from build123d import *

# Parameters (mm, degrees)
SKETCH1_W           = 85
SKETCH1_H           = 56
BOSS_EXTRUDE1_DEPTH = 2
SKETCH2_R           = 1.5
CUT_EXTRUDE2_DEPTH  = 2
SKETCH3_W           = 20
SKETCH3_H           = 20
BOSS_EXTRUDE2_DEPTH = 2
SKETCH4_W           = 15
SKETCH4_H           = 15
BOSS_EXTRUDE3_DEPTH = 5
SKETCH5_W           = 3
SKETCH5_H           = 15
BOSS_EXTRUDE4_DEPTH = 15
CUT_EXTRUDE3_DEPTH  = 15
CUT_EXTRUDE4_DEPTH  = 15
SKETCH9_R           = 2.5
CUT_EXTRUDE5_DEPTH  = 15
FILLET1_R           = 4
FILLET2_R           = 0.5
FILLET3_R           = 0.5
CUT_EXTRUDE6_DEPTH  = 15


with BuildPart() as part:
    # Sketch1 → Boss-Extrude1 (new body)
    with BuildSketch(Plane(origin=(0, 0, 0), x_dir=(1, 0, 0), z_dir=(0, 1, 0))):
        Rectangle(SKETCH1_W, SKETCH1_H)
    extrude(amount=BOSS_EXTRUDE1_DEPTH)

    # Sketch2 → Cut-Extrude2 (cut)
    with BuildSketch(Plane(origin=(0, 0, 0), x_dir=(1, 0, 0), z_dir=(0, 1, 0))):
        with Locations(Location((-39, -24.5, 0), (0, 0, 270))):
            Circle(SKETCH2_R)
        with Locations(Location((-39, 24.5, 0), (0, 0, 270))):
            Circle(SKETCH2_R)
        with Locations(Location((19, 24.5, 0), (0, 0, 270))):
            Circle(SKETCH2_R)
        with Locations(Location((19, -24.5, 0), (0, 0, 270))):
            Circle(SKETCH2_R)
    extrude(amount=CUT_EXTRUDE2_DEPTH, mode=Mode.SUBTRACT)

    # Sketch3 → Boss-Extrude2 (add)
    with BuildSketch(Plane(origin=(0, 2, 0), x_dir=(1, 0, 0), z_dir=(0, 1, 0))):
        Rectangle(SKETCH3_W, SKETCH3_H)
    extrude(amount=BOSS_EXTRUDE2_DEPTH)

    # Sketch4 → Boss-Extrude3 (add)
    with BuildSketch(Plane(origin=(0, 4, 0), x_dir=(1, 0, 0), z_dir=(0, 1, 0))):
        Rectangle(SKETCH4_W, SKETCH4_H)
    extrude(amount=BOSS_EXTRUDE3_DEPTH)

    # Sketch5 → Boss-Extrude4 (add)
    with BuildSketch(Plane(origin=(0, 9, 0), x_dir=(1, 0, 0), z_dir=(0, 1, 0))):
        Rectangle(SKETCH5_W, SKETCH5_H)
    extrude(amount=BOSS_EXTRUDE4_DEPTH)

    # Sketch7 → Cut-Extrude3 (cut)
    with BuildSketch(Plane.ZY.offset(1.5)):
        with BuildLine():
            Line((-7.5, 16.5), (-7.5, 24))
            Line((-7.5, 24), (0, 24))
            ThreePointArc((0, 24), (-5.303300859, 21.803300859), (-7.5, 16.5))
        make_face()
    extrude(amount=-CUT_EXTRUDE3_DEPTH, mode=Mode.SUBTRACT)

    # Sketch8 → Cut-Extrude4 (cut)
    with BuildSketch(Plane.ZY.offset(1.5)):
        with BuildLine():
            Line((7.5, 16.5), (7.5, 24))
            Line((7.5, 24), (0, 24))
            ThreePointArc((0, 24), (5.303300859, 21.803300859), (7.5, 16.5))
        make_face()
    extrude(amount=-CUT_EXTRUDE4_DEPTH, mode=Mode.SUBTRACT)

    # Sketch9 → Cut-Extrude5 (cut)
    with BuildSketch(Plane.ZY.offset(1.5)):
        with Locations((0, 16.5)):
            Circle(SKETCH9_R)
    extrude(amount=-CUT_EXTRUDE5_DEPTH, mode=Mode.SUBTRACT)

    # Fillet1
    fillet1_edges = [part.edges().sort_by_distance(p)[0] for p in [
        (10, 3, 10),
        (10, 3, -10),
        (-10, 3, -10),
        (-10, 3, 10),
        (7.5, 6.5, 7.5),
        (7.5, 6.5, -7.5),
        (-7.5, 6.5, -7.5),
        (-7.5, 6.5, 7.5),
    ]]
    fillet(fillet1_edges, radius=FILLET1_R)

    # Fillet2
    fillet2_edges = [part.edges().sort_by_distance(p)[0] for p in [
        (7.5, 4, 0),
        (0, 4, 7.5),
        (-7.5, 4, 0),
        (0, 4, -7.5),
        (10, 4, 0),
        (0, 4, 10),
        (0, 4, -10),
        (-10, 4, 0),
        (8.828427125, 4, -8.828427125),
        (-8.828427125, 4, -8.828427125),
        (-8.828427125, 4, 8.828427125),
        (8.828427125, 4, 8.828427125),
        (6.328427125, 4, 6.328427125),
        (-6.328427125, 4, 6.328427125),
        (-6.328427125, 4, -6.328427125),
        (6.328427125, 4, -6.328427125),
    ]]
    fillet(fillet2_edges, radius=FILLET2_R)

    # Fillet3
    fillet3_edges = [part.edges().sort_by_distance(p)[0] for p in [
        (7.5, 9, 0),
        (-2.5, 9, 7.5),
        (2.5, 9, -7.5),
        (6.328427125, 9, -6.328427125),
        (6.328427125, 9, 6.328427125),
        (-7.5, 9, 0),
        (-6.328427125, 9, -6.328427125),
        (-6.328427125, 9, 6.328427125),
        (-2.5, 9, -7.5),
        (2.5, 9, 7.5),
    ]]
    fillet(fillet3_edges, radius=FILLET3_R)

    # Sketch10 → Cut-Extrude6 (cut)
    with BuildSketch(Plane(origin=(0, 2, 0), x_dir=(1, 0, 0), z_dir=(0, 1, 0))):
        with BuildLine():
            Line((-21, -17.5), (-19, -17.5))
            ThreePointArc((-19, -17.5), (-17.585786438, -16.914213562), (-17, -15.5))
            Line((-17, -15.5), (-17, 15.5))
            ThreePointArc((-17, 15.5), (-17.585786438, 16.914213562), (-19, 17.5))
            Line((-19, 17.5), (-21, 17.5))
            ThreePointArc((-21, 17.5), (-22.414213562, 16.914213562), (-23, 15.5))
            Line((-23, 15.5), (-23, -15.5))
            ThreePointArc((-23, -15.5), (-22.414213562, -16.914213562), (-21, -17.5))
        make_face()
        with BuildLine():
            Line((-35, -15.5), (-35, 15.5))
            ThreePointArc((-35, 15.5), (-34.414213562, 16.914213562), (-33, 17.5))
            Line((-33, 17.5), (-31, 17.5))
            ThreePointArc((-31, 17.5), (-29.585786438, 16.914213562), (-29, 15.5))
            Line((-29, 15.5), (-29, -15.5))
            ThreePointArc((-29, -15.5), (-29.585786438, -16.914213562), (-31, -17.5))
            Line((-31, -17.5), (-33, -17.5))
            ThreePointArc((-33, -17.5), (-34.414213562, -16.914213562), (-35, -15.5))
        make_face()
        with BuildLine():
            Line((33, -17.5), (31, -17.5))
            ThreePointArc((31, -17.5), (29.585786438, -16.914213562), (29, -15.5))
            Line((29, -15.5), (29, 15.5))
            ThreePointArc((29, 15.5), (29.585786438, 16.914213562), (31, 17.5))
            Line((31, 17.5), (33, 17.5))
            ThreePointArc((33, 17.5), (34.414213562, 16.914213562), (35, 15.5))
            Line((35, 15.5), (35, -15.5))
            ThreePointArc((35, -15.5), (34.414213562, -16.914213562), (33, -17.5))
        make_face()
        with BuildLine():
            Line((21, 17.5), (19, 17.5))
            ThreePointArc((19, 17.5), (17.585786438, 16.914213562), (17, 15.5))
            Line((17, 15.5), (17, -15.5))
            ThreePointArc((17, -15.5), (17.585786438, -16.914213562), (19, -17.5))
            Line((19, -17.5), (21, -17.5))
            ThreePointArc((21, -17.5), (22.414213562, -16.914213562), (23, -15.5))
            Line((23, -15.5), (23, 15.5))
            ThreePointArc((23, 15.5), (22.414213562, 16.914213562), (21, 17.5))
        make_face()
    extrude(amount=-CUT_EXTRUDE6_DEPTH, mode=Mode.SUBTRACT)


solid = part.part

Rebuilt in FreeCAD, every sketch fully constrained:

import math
import FreeCAD as App
import Part
import Sketcher

V = App.Vector


def edges_at(feature, points):
    """Names of the edges that pass closest to the given points."""
    edges = feature.Shape.Edges
    near = lambda p: min(range(len(edges)), key=lambda i: edges[i].distToShape(Part.Vertex(*p))[0])
    return sorted({f"Edge{near(p) + 1}" for p in points})

doc = App.newDocument("Part")
body = doc.addObject("PartDesign::Body", "Body")

sketch1 = doc.addObject("Sketcher::SketchObject", "Sketch")
body.addObject(sketch1)
sketch1.AttachmentSupport = (doc.XZ_Plane, [""])
sketch1.MapMode = "FlatFace"
sketch1.addGeometry(Part.LineSegment(V(-42, -28, 0), V(-42, 28, 0)), False)
sketch1.addGeometry(Part.LineSegment(V(-42, 28, 0), V(42, 28, 0)), False)
sketch1.addGeometry(Part.LineSegment(V(42, 28, 0), V(42, -28, 0)), False)
sketch1.addGeometry(Part.LineSegment(V(42, -28, 0), V(-42, -28, 0)), False)
sketch1.addConstraint(Sketcher.Constraint("Coincident", 0, 2, 1, 1))
sketch1.addConstraint(Sketcher.Constraint("Coincident", 1, 2, 2, 1))
sketch1.addConstraint(Sketcher.Constraint("Coincident", 2, 2, 3, 1))
sketch1.addConstraint(Sketcher.Constraint("Coincident", 3, 2, 0, 1))
sketch1.addConstraint(Sketcher.Constraint("Vertical", 0))
sketch1.addConstraint(Sketcher.Constraint("Horizontal", 1))
sketch1.addConstraint(Sketcher.Constraint("Vertical", 2))
sketch1.addConstraint(Sketcher.Constraint("Horizontal", 3))
sketch1.addConstraint(Sketcher.Constraint("Symmetric", 0, 2, 2, 2, -1, 1))
sketch1.addConstraint(Sketcher.Constraint("DistanceX", 1, 1, 1, 2, 85.0))
sketch1.addConstraint(Sketcher.Constraint("DistanceY", 0, 1, 0, 2, 56.0))
pad1 = doc.addObject("PartDesign::Pad", "Pad")
body.addObject(pad1)
pad1.Profile = sketch1
pad1.Length = 2
pad1.Reversed = True

sketch2 = doc.addObject("Sketcher::SketchObject", "Sketch001")
body.addObject(sketch2)
sketch2.AttachmentSupport = (doc.XZ_Plane, [""])
sketch2.MapMode = "FlatFace"
sketch2.addGeometry(Part.Circle(V(-39, 24.5, 0), V(0, 0, 1), 1.5), False)
sketch2.addGeometry(Part.Circle(V(-39, -24.5, 0), V(0, 0, 1), 1.5), False)
sketch2.addGeometry(Part.Circle(V(19, -24.5, 0), V(0, 0, 1), 1.5), False)
sketch2.addGeometry(Part.Circle(V(19, 24.5, 0), V(0, 0, 1), 1.5), False)
sketch2.addConstraint(Sketcher.Constraint("Equal", 0, 1))
sketch2.addConstraint(Sketcher.Constraint("Equal", 1, 2))
sketch2.addConstraint(Sketcher.Constraint("Equal", 2, 3))
sketch2.addConstraint(Sketcher.Constraint("Symmetric", 0, 3, 1, 3, -1))
sketch2.addConstraint(Sketcher.Constraint("Symmetric", 2, 3, 3, 3, -1))
sketch2.addConstraint(Sketcher.Constraint("Horizontal", 1, 3, 2, 3))
sketch2.addConstraint(Sketcher.Constraint("Diameter", 0, 3.0))
sketch2.addConstraint(Sketcher.Constraint("DistanceX", 0, 3, -1, 1, 39.0))
sketch2.addConstraint(Sketcher.Constraint("DistanceX", -1, 1, 2, 3, 19.0))
sketch2.addConstraint(Sketcher.Constraint("DistanceY", 1, 3, 0, 3, 49.0))
pocket1 = doc.addObject("PartDesign::Pocket", "Pocket")
body.addObject(pocket1)
pocket1.Profile = sketch2
pocket1.Length = 2

sketch3 = doc.addObject("Sketcher::SketchObject", "Sketch002")
body.addObject(sketch3)
sketch3.AttachmentSupport = (doc.XZ_Plane, [""])
sketch3.MapMode = "FlatFace"
sketch3.AttachmentOffset = App.Placement(V(0, 0, -2), App.Rotation())
sketch3.addGeometry(Part.LineSegment(V(-10, -10, 0), V(-10, 10, 0)), False)
sketch3.addGeometry(Part.LineSegment(V(-10, 10, 0), V(10, 10, 0)), False)
sketch3.addGeometry(Part.LineSegment(V(10, 10, 0), V(10, -10, 0)), False)
sketch3.addGeometry(Part.LineSegment(V(10, -10, 0), V(-10, -10, 0)), False)
sketch3.addConstraint(Sketcher.Constraint("Coincident", 0, 2, 1, 1))
sketch3.addConstraint(Sketcher.Constraint("Coincident", 1, 2, 2, 1))
sketch3.addConstraint(Sketcher.Constraint("Coincident", 2, 2, 3, 1))
sketch3.addConstraint(Sketcher.Constraint("Coincident", 3, 2, 0, 1))
sketch3.addConstraint(Sketcher.Constraint("Vertical", 0))
sketch3.addConstraint(Sketcher.Constraint("Horizontal", 1))
sketch3.addConstraint(Sketcher.Constraint("Vertical", 2))
sketch3.addConstraint(Sketcher.Constraint("Horizontal", 3))
sketch3.addConstraint(Sketcher.Constraint("Symmetric", 0, 2, 2, 2, -1, 1))
sketch3.addConstraint(Sketcher.Constraint("Equal", 3, 0))
sketch3.addConstraint(Sketcher.Constraint("DistanceX", 1, 1, 1, 2, 20.0))
pad2 = doc.addObject("PartDesign::Pad", "Pad001")
body.addObject(pad2)
pad2.Profile = sketch3
pad2.Length = 2
pad2.Reversed = True

sketch4 = doc.addObject("Sketcher::SketchObject", "Sketch003")
body.addObject(sketch4)
sketch4.AttachmentSupport = (doc.XZ_Plane, [""])
sketch4.MapMode = "FlatFace"
sketch4.AttachmentOffset = App.Placement(V(0, 0, -4), App.Rotation())
sketch4.addGeometry(Part.LineSegment(V(-8, -8, 0), V(-8, 8, 0)), False)
sketch4.addGeometry(Part.LineSegment(V(-8, 8, 0), V(8, 8, 0)), False)
sketch4.addGeometry(Part.LineSegment(V(8, 8, 0), V(8, -8, 0)), False)
sketch4.addGeometry(Part.LineSegment(V(8, -8, 0), V(-8, -8, 0)), False)
sketch4.addConstraint(Sketcher.Constraint("Coincident", 0, 2, 1, 1))
sketch4.addConstraint(Sketcher.Constraint("Coincident", 1, 2, 2, 1))
sketch4.addConstraint(Sketcher.Constraint("Coincident", 2, 2, 3, 1))
sketch4.addConstraint(Sketcher.Constraint("Coincident", 3, 2, 0, 1))
sketch4.addConstraint(Sketcher.Constraint("Vertical", 0))
sketch4.addConstraint(Sketcher.Constraint("Horizontal", 1))
sketch4.addConstraint(Sketcher.Constraint("Vertical", 2))
sketch4.addConstraint(Sketcher.Constraint("Horizontal", 3))
sketch4.addConstraint(Sketcher.Constraint("Symmetric", 0, 2, 2, 2, -1, 1))
sketch4.addConstraint(Sketcher.Constraint("Equal", 3, 0))
sketch4.addConstraint(Sketcher.Constraint("DistanceX", 1, 1, 1, 2, 15.0))
pad3 = doc.addObject("PartDesign::Pad", "Pad002")
body.addObject(pad3)
pad3.Profile = sketch4
pad3.Length = 5
pad3.Reversed = True

sketch5 = doc.addObject("Sketcher::SketchObject", "Sketch004")
body.addObject(sketch5)
sketch5.AttachmentSupport = (doc.XZ_Plane, [""])
sketch5.MapMode = "FlatFace"
sketch5.AttachmentOffset = App.Placement(V(0, 0, -9), App.Rotation())
sketch5.addGeometry(Part.LineSegment(V(-1.5, -7.5, 0), V(-1.5, 7.5, 0)), False)
sketch5.addGeometry(Part.LineSegment(V(-1.5, 7.5, 0), V(1.5, 7.5, 0)), False)
sketch5.addGeometry(Part.LineSegment(V(1.5, 7.5, 0), V(1.5, -7.5, 0)), False)
sketch5.addGeometry(Part.LineSegment(V(1.5, -7.5, 0), V(-1.5, -7.5, 0)), False)
sketch5.addConstraint(Sketcher.Constraint("Coincident", 0, 2, 1, 1))
sketch5.addConstraint(Sketcher.Constraint("Coincident", 1, 2, 2, 1))
sketch5.addConstraint(Sketcher.Constraint("Coincident", 2, 2, 3, 1))
sketch5.addConstraint(Sketcher.Constraint("Coincident", 3, 2, 0, 1))
sketch5.addConstraint(Sketcher.Constraint("Vertical", 0))
sketch5.addConstraint(Sketcher.Constraint("Horizontal", 1))
sketch5.addConstraint(Sketcher.Constraint("Vertical", 2))
sketch5.addConstraint(Sketcher.Constraint("Horizontal", 3))
sketch5.addConstraint(Sketcher.Constraint("Symmetric", 0, 2, 2, 2, -1, 1))
sketch5.addConstraint(Sketcher.Constraint("DistanceX", 1, 1, 1, 2, 3.0))
sketch5.addConstraint(Sketcher.Constraint("DistanceY", 0, 1, 0, 2, 15.0))
pad4 = doc.addObject("PartDesign::Pad", "Pad003")
body.addObject(pad4)
pad4.Profile = sketch5
pad4.Length = 15
pad4.Reversed = True

sketch6 = doc.addObject("Sketcher::SketchObject", "Sketch005")
body.addObject(sketch6)
sketch6.AttachmentSupport = (doc.YZ_Plane, [""])
sketch6.MapMode = "FlatFace"
sketch6.AttachmentOffset = App.Placement(V(0, 0, -1.5), App.Rotation())
sketch6.addGeometry(Part.LineSegment(V(24, -8, 0), V(16, -8, 0)), False)
sketch6.addGeometry(Part.ArcOfCircle(Part.Circle(V(16, 0, 0), V(0, 0, 1), 8), math.radians(-90), math.radians(0)), False)
sketch6.addGeometry(Part.LineSegment(V(24, 0, 0), V(24, -8, 0)), False)
sketch6.addConstraint(Sketcher.Constraint("Tangent", 0, 2, 1, 1))
sketch6.addConstraint(Sketcher.Constraint("Tangent", 1, 2, 2, 1))
sketch6.addConstraint(Sketcher.Constraint("Coincident", 2, 2, 0, 1))
sketch6.addConstraint(Sketcher.Constraint("Horizontal", 0))
sketch6.addConstraint(Sketcher.Constraint("Vertical", 2))
sketch6.addConstraint(Sketcher.Constraint("PointOnObject", 1, 3, -1))
sketch6.addConstraint(Sketcher.Constraint("Radius", 1, 7.5))
sketch6.addConstraint(Sketcher.Constraint("DistanceX", -1, 1, 1, 2, 24.0))
pocket2 = doc.addObject("PartDesign::Pocket", "Pocket001")
body.addObject(pocket2)
pocket2.Profile = sketch6
pocket2.Length = 15
pocket2.Reversed = True

sketch7 = doc.addObject("Sketcher::SketchObject", "Sketch006")
body.addObject(sketch7)
sketch7.AttachmentSupport = (doc.YZ_Plane, [""])
sketch7.MapMode = "FlatFace"
sketch7.AttachmentOffset = App.Placement(V(0, 0, -1.5), App.Rotation())
sketch7.addGeometry(Part.LineSegment(V(16, 8, 0), V(24, 8, 0)), False)
sketch7.addGeometry(Part.LineSegment(V(24, 8, 0), V(24, 0, 0)), False)
sketch7.addGeometry(Part.ArcOfCircle(Part.Circle(V(16, 0, 0), V(0, 0, 1), 8), math.radians(0), math.radians(90)), False)
sketch7.addConstraint(Sketcher.Constraint("Coincident", 0, 2, 1, 1))
sketch7.addConstraint(Sketcher.Constraint("Tangent", 1, 2, 2, 1))
sketch7.addConstraint(Sketcher.Constraint("Tangent", 2, 2, 0, 1))
sketch7.addConstraint(Sketcher.Constraint("Horizontal", 0))
sketch7.addConstraint(Sketcher.Constraint("Vertical", 1))
sketch7.addConstraint(Sketcher.Constraint("PointOnObject", 2, 3, -1))
sketch7.addConstraint(Sketcher.Constraint("Radius", 2, 7.5))
sketch7.addConstraint(Sketcher.Constraint("DistanceX", -1, 1, 0, 2, 24.0))
pocket3 = doc.addObject("PartDesign::Pocket", "Pocket002")
body.addObject(pocket3)
pocket3.Profile = sketch7
pocket3.Length = 15
pocket3.Reversed = True

sketch8 = doc.addObject("Sketcher::SketchObject", "Sketch007")
body.addObject(sketch8)
sketch8.AttachmentSupport = (doc.YZ_Plane, [""])
sketch8.MapMode = "FlatFace"
sketch8.AttachmentOffset = App.Placement(V(0, 0, -1.5), App.Rotation())
sketch8.addGeometry(Part.Circle(V(16.5, 0, 0), V(0, 0, 1), 2.5), False)
sketch8.addConstraint(Sketcher.Constraint("PointOnObject", 0, 3, -1))
sketch8.addConstraint(Sketcher.Constraint("Diameter", 0, 5.0))
sketch8.addConstraint(Sketcher.Constraint("DistanceX", -1, 1, 0, 3, 16.5))
pocket4 = doc.addObject("PartDesign::Pocket", "Pocket003")
body.addObject(pocket4)
pocket4.Profile = sketch8
pocket4.Length = 15
pocket4.Reversed = True
doc.recompute()

fillet = doc.addObject("PartDesign::Fillet", "Fillet")
body.addObject(fillet)
fillet.Base = (pocket4, edges_at(pocket4, [
    (10, 3, 10),
    (10, 3, -10),
    (-10, 3, -10),
    (-10, 3, 10),
    (7.5, 6.5, 7.5),
    (7.5, 6.5, -7.5),
    (-7.5, 6.5, -7.5),
    (-7.5, 6.5, 7.5),
]))
fillet.Radius = 4
doc.recompute()

fillet2 = doc.addObject("PartDesign::Fillet", "Fillet001")
body.addObject(fillet2)
fillet2.Base = (fillet, edges_at(fillet, [
    (7.5, 4, 0),
    (0, 4, 7.5),
    (-7.5, 4, 0),
    (0, 4, -7.5),
    (10, 4, 0),
    (0, 4, 10),
    (0, 4, -10),
    (-10, 4, 0),
    (8.828, 4, -8.828),
    (-8.828, 4, -8.828),
    (-8.828, 4, 8.828),
    (8.828, 4, 8.828),
    (6.328, 4, 6.328),
    (-6.328, 4, 6.328),
    (-6.328, 4, -6.328),
    (6.328, 4, -6.328),
]))
fillet2.Radius = 0.5
doc.recompute()

fillet3 = doc.addObject("PartDesign::Fillet", "Fillet002")
body.addObject(fillet3)
fillet3.Base = (fillet2, edges_at(fillet2, [
    (7.5, 9, 0),
    (-2.5, 9, 7.5),
    (2.5, 9, -7.5),
    (6.328, 9, -6.328),
    (6.328, 9, 6.328),
    (-7.5, 9, 0),
    (-6.328, 9, -6.328),
    (-6.328, 9, 6.328),
    (-2.5, 9, -7.5),
    (2.5, 9, 7.5),
]))
fillet3.Radius = 0.5

sketch9 = doc.addObject("Sketcher::SketchObject", "Sketch008")
body.addObject(sketch9)
sketch9.AttachmentSupport = (doc.XZ_Plane, [""])
sketch9.MapMode = "FlatFace"
sketch9.AttachmentOffset = App.Placement(V(0, 0, -2), App.Rotation())
sketch9.addGeometry(Part.LineSegment(V(-21, 17.5, 0), V(-19, 17.5, 0)), False)
sketch9.addGeometry(Part.ArcOfCircle(Part.Circle(V(-19, 15.5, 0), V(0, 0, 1), 2), math.radians(0), math.radians(90)), False)
sketch9.addGeometry(Part.LineSegment(V(-17, 15.5, 0), V(-17, -15.5, 0)), False)
sketch9.addGeometry(Part.ArcOfCircle(Part.Circle(V(-19, -15.5, 0), V(0, 0, 1), 2), math.radians(-90), math.radians(0)), False)
sketch9.addGeometry(Part.LineSegment(V(-19, -17.5, 0), V(-21, -17.5, 0)), False)
sketch9.addGeometry(Part.ArcOfCircle(Part.Circle(V(-21, -15.5, 0), V(0, 0, 1), 2), math.radians(-180), math.radians(-90)), False)
sketch9.addGeometry(Part.LineSegment(V(-23, -15.5, 0), V(-23, 15.5, 0)), False)
sketch9.addGeometry(Part.ArcOfCircle(Part.Circle(V(-21, 15.5, 0), V(0, 0, 1), 2), math.radians(90), math.radians(180)), False)
sketch9.addGeometry(Part.LineSegment(V(-35, -15.5, 0), V(-35, 15.5, 0)), False)
sketch9.addGeometry(Part.ArcOfCircle(Part.Circle(V(-33, 15.5, 0), V(0, 0, 1), 2), math.radians(90), math.radians(180)), False)
sketch9.addGeometry(Part.LineSegment(V(-33, 17.5, 0), V(-31, 17.5, 0)), False)
sketch9.addGeometry(Part.ArcOfCircle(Part.Circle(V(-31, 15.5, 0), V(0, 0, 1), 2), math.radians(0), math.radians(90)), False)
sketch9.addGeometry(Part.LineSegment(V(-29, 15.5, 0), V(-29, -15.5, 0)), False)
sketch9.addGeometry(Part.ArcOfCircle(Part.Circle(V(-31, -15.5, 0), V(0, 0, 1), 2), math.radians(-90), math.radians(0)), False)
sketch9.addGeometry(Part.LineSegment(V(-31, -17.5, 0), V(-33, -17.5, 0)), False)
sketch9.addGeometry(Part.ArcOfCircle(Part.Circle(V(-33, -15.5, 0), V(0, 0, 1), 2), math.radians(-180), math.radians(-90)), False)
sketch9.addGeometry(Part.LineSegment(V(31, 17.5, 0), V(33, 17.5, 0)), False)
sketch9.addGeometry(Part.ArcOfCircle(Part.Circle(V(33, 15.5, 0), V(0, 0, 1), 2), math.radians(0), math.radians(90)), False)
sketch9.addGeometry(Part.LineSegment(V(35, 15.5, 0), V(35, -15.5, 0)), False)
sketch9.addGeometry(Part.ArcOfCircle(Part.Circle(V(33, -15.5, 0), V(0, 0, 1), 2), math.radians(-90), math.radians(0)), False)
sketch9.addGeometry(Part.LineSegment(V(33, -17.5, 0), V(31, -17.5, 0)), False)
sketch9.addGeometry(Part.ArcOfCircle(Part.Circle(V(31, -15.5, 0), V(0, 0, 1), 2), math.radians(-180), math.radians(-90)), False)
sketch9.addGeometry(Part.LineSegment(V(29, -15.5, 0), V(29, 15.5, 0)), False)
sketch9.addGeometry(Part.ArcOfCircle(Part.Circle(V(31, 15.5, 0), V(0, 0, 1), 2), math.radians(90), math.radians(180)), False)
sketch9.addGeometry(Part.LineSegment(V(21, -17.5, 0), V(19, -17.5, 0)), False)
sketch9.addGeometry(Part.ArcOfCircle(Part.Circle(V(19, -15.5, 0), V(0, 0, 1), 2), math.radians(-180), math.radians(-90)), False)
sketch9.addGeometry(Part.LineSegment(V(17, -15.5, 0), V(17, 15.5, 0)), False)
sketch9.addGeometry(Part.ArcOfCircle(Part.Circle(V(19, 15.5, 0), V(0, 0, 1), 2), math.radians(90), math.radians(180)), False)
sketch9.addGeometry(Part.LineSegment(V(19, 17.5, 0), V(21, 17.5, 0)), False)
sketch9.addGeometry(Part.ArcOfCircle(Part.Circle(V(21, 15.5, 0), V(0, 0, 1), 2), math.radians(0), math.radians(90)), False)
sketch9.addGeometry(Part.LineSegment(V(23, 15.5, 0), V(23, -15.5, 0)), False)
sketch9.addGeometry(Part.ArcOfCircle(Part.Circle(V(21, -15.5, 0), V(0, 0, 1), 2), math.radians(-90), math.radians(0)), False)
sketch9.addConstraint(Sketcher.Constraint("Tangent", 0, 2, 1, 2))
sketch9.addConstraint(Sketcher.Constraint("Tangent", 1, 1, 2, 1))
sketch9.addConstraint(Sketcher.Constraint("Tangent", 2, 2, 3, 2))
sketch9.addConstraint(Sketcher.Constraint("Tangent", 3, 1, 4, 1))
sketch9.addConstraint(Sketcher.Constraint("Tangent", 4, 2, 5, 2))
sketch9.addConstraint(Sketcher.Constraint("Tangent", 5, 1, 6, 1))
sketch9.addConstraint(Sketcher.Constraint("Tangent", 6, 2, 7, 2))
sketch9.addConstraint(Sketcher.Constraint("Tangent", 7, 1, 0, 1))
sketch9.addConstraint(Sketcher.Constraint("Tangent", 8, 2, 9, 2))
sketch9.addConstraint(Sketcher.Constraint("Tangent", 9, 1, 10, 1))
sketch9.addConstraint(Sketcher.Constraint("Tangent", 10, 2, 11, 2))
sketch9.addConstraint(Sketcher.Constraint("Tangent", 11, 1, 12, 1))
sketch9.addConstraint(Sketcher.Constraint("Tangent", 12, 2, 13, 2))
sketch9.addConstraint(Sketcher.Constraint("Tangent", 13, 1, 14, 1))
sketch9.addConstraint(Sketcher.Constraint("Tangent", 14, 2, 15, 2))
sketch9.addConstraint(Sketcher.Constraint("Tangent", 15, 1, 8, 1))
sketch9.addConstraint(Sketcher.Constraint("Tangent", 16, 2, 17, 2))
sketch9.addConstraint(Sketcher.Constraint("Tangent", 17, 1, 18, 1))
sketch9.addConstraint(Sketcher.Constraint("Tangent", 18, 2, 19, 2))
sketch9.addConstraint(Sketcher.Constraint("Tangent", 19, 1, 20, 1))
sketch9.addConstraint(Sketcher.Constraint("Tangent", 20, 2, 21, 2))
sketch9.addConstraint(Sketcher.Constraint("Tangent", 21, 1, 22, 1))
sketch9.addConstraint(Sketcher.Constraint("Tangent", 22, 2, 23, 2))
sketch9.addConstraint(Sketcher.Constraint("Tangent", 23, 1, 16, 1))
sketch9.addConstraint(Sketcher.Constraint("Tangent", 24, 2, 25, 2))
sketch9.addConstraint(Sketcher.Constraint("Tangent", 25, 1, 26, 1))
sketch9.addConstraint(Sketcher.Constraint("Tangent", 26, 2, 27, 2))
sketch9.addConstraint(Sketcher.Constraint("Tangent", 27, 1, 28, 1))
sketch9.addConstraint(Sketcher.Constraint("Tangent", 28, 2, 29, 2))
sketch9.addConstraint(Sketcher.Constraint("Tangent", 29, 1, 30, 1))
sketch9.addConstraint(Sketcher.Constraint("Tangent", 30, 2, 31, 2))
sketch9.addConstraint(Sketcher.Constraint("Tangent", 31, 1, 24, 1))
sketch9.addConstraint(Sketcher.Constraint("Horizontal", 0))
sketch9.addConstraint(Sketcher.Constraint("Vertical", 2))
sketch9.addConstraint(Sketcher.Constraint("Horizontal", 4))
sketch9.addConstraint(Sketcher.Constraint("Vertical", 6))
sketch9.addConstraint(Sketcher.Constraint("Vertical", 8))
sketch9.addConstraint(Sketcher.Constraint("Horizontal", 10))
sketch9.addConstraint(Sketcher.Constraint("Vertical", 12))
sketch9.addConstraint(Sketcher.Constraint("Horizontal", 14))
sketch9.addConstraint(Sketcher.Constraint("Horizontal", 16))
sketch9.addConstraint(Sketcher.Constraint("Vertical", 18))
sketch9.addConstraint(Sketcher.Constraint("Horizontal", 20))
sketch9.addConstraint(Sketcher.Constraint("Vertical", 22))
sketch9.addConstraint(Sketcher.Constraint("Horizontal", 24))
sketch9.addConstraint(Sketcher.Constraint("Vertical", 26))
sketch9.addConstraint(Sketcher.Constraint("Horizontal", 28))
sketch9.addConstraint(Sketcher.Constraint("Vertical", 30))
sketch9.addConstraint(Sketcher.Constraint("Equal", 1, 3))
sketch9.addConstraint(Sketcher.Constraint("Equal", 3, 5))
sketch9.addConstraint(Sketcher.Constraint("Equal", 5, 7))
sketch9.addConstraint(Sketcher.Constraint("Equal", 7, 9))
sketch9.addConstraint(Sketcher.Constraint("Equal", 9, 11))
sketch9.addConstraint(Sketcher.Constraint("Equal", 11, 13))
sketch9.addConstraint(Sketcher.Constraint("Equal", 13, 15))
sketch9.addConstraint(Sketcher.Constraint("Equal", 15, 17))
sketch9.addConstraint(Sketcher.Constraint("Equal", 17, 19))
sketch9.addConstraint(Sketcher.Constraint("Equal", 19, 21))
sketch9.addConstraint(Sketcher.Constraint("Equal", 21, 23))
sketch9.addConstraint(Sketcher.Constraint("Equal", 23, 25))
sketch9.addConstraint(Sketcher.Constraint("Equal", 25, 27))
sketch9.addConstraint(Sketcher.Constraint("Equal", 27, 29))
sketch9.addConstraint(Sketcher.Constraint("Equal", 29, 31))
sketch9.addConstraint(Sketcher.Constraint("Symmetric", 15, 3, 17, 3, -1, 1))
sketch9.addConstraint(Sketcher.Constraint("Symmetric", 11, 3, 21, 3, -1, 1))
sketch9.addConstraint(Sketcher.Constraint("Symmetric", 1, 3, 25, 3, -1, 1))
sketch9.addConstraint(Sketcher.Constraint("Symmetric", 5, 3, 29, 3, -1, 1))
sketch9.addConstraint(Sketcher.Constraint("Horizontal", 7, 3, 9, 3))
sketch9.addConstraint(Sketcher.Constraint("Horizontal", 5, 3, 13, 3))
sketch9.addConstraint(Sketcher.Constraint("Horizontal", 11, 3, 17, 3))
sketch9.addConstraint(Sketcher.Constraint("Equal", 4, 10))
sketch9.addConstraint(Sketcher.Constraint("Radius", 1, 2.0))
sketch9.addConstraint(Sketcher.Constraint("DistanceX", 0, 1, 0, 2, 2.0))
sketch9.addConstraint(Sketcher.Constraint("DistanceY", 2, 2, 2, 1, 31.0))
sketch9.addConstraint(Sketcher.Constraint("DistanceX", 1, 3, -1, 1, 19.0))
sketch9.addConstraint(Sketcher.Constraint("DistanceX", 9, 3, -1, 1, 33.0))
pocket5 = doc.addObject("PartDesign::Pocket", "Pocket004")
body.addObject(pocket5)
pocket5.Profile = sketch9
pocket5.Length = 15
pocket5.Reversed = True

doc.recompute()
